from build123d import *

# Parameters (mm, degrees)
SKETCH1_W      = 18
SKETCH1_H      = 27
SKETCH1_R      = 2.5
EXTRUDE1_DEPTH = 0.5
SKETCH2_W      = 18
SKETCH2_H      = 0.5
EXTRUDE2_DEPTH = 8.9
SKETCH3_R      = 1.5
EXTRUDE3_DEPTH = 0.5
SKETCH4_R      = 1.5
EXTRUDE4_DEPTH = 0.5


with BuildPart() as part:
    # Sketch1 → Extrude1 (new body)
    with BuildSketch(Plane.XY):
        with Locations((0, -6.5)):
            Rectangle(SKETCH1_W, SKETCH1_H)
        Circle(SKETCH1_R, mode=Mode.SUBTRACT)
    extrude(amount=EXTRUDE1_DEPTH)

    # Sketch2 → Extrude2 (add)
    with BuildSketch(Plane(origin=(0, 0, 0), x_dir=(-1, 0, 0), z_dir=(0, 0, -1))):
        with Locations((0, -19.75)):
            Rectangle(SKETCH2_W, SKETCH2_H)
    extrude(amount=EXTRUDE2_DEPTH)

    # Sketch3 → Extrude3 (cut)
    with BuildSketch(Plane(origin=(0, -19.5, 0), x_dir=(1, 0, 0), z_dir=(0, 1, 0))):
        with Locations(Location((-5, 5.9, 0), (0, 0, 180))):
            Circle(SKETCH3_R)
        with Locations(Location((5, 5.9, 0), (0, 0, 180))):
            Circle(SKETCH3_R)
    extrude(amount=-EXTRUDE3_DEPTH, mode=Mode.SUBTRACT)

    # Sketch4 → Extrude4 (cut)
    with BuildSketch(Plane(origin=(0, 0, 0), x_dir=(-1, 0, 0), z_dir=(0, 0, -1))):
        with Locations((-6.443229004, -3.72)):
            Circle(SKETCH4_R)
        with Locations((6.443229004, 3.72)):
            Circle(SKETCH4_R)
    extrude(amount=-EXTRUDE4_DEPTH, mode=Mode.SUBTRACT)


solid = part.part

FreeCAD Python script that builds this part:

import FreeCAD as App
import Part
import Sketcher
Q = App.Units.Quantity


def add_polygon(sketch, points):
    """Adds a closed chain of lines whose ends are joined by coincident constraints."""
    first, n = sketch.GeometryCount, len(points)
    for a, b in zip(points, points[1:] + points[:1]):
        sketch.addGeometry(Part.LineSegment(App.Vector(*a, 0), App.Vector(*b, 0)), False)
    for i in range(n):
        sketch.addConstraint(Sketcher.Constraint("Coincident", first + i, 2, first + (i + 1) % n, 1))

doc = App.newDocument("Part")
body = doc.addObject("PartDesign::Body", "Body")

# Sketch on XY plane
sketch1 = doc.addObject("Sketcher::SketchObject", "Sketch")
body.addObject(sketch1)
sketch1.AttachmentSupport = (doc.XY_Plane, [""])
sketch1.MapMode = "FlatFace"
add_polygon(sketch1, [(-9, 7), (-9, -20), (9, -20), (9, 7)])  # lines 0-3
sketch1.addGeometry(Part.Circle(App.Vector(0, 0, 0), App.Vector(0, 0, 1), 2.5), False)  # 4
sketch1.addConstraint(Sketcher.Constraint("Vertical", 0))
sketch1.addConstraint(Sketcher.Constraint("Horizontal", 1))
sketch1.addConstraint(Sketcher.Constraint("Vertical", 2))
sketch1.addConstraint(Sketcher.Constraint("Horizontal", 3))
sketch1.addConstraint(Sketcher.Constraint("Coincident", 4, 3, -1, 1))
sketch1.addConstraint(Sketcher.Constraint("Diameter", 4, Q("5 mm")))
sketch1.addConstraint(Sketcher.Constraint("DistanceX", 1, 1, 1, 2, Q("18 mm")))
sketch1.addConstraint(Sketcher.Constraint("DistanceY", 0, 2, 0, 1, Q("27 mm")))
sketch1.addConstraint(Sketcher.Constraint("DistanceX", 0, 2, -1, 1, Q("9 mm")))
sketch1.addConstraint(Sketcher.Constraint("DistanceY", 0, 2, -1, 1, Q("20 mm")))
pad1 = doc.addObject("PartDesign::Pad", "Pad")
body.addObject(pad1)
pad1.Profile = sketch1
pad1.Length = 0.5

# Sketch on XY plane
sketch2 = doc.addObject("Sketcher::SketchObject", "Sketch001")
body.addObject(sketch2)
sketch2.AttachmentSupport = (doc.XY_Plane, [""])
sketch2.MapMode = "FlatFace"
add_polygon(sketch2, [(9, -19.5), (9, -20), (-9, -20), (-9, -19.5)])  # lines 0-3
sketch2.addConstraint(Sketcher.Constraint("Vertical", 0))
sketch2.addConstraint(Sketcher.Constraint("Horizontal", 1))
sketch2.addConstraint(Sketcher.Constraint("Vertical", 2))
sketch2.addConstraint(Sketcher.Constraint("Horizontal", 3))
sketch2.addConstraint(Sketcher.Constraint("DistanceX", 1, 2, 1, 1, Q("18 mm")))
sketch2.addConstraint(Sketcher.Constraint("DistanceY", 0, 2, 0, 1, Q("0.5 mm")))
sketch2.addConstraint(Sketcher.Constraint("DistanceX", -1, 1, 0, 2, Q("9 mm")))
sketch2.addConstraint(Sketcher.Constraint("DistanceY", 0, 2, -1, 1, Q("20 mm")))
pad2 = doc.addObject("PartDesign::Pad", "Pad001")
body.addObject(pad2)
pad2.Profile = sketch2
pad2.Length = 8.9
pad2.Reversed = True

# Sketch on XZ plane
sketch3 = doc.addObject("Sketcher::SketchObject", "Sketch002")
body.addObject(sketch3)
sketch3.AttachmentSupport = (doc.XZ_Plane, [""])
sketch3.MapMode = "FlatFace"
sketch3.AttachmentOffset = App.Placement(App.Vector(0, 0, 19.5), App.Rotation())
sketch3.addGeometry(Part.Circle(App.Vector(-5, -5.9, 0), App.Vector(0, 0, 1), 1.5), False)
sketch3.addGeometry(Part.Circle(App.Vector(5, -5.9, 0), App.Vector(0, 0, 1), 1.5), False)
sketch3.addConstraint(Sketcher.Constraint("Equal", 0, 1))
sketch3.addConstraint(Sketcher.Constraint("Symmetric", 0, 3, 1, 3, -2))
sketch3.addConstraint(Sketcher.Constraint("Diameter", 0, Q("3 mm")))
sketch3.addConstraint(Sketcher.Constraint("DistanceX", 0, 3, -1, 1, Q("5 mm")))
sketch3.addConstraint(Sketcher.Constraint("DistanceY", 0, 3, -1, 1, Q("5.9 mm")))
pocket1 = doc.addObject("PartDesign::Pocket", "Pocket")
body.addObject(pocket1)
pocket1.Profile = sketch3
pocket1.Length = 0.5
pocket1.Reversed = True

# Sketch on XY plane
sketch4 = doc.addObject("Sketcher::SketchObject", "Sketch003")
body.addObject(sketch4)
sketch4.AttachmentSupport = (doc.XY_Plane, [""])
sketch4.MapMode = "FlatFace"
sketch4.addGeometry(Part.Circle(App.Vector(6.4, -3.7, 0), App.Vector(0, 0, 1), 1.5), False)
sketch4.addGeometry(Part.Circle(App.Vector(-6.4, 3.7, 0), App.Vector(0, 0, 1), 1.5), False)
sketch4.addConstraint(Sketcher.Constraint("Equal", 0, 1))
sketch4.addConstraint(Sketcher.Constraint("Symmetric", 0, 3, 1, 3, -1, 1))
sketch4.addConstraint(Sketcher.Constraint("Diameter", 0, Q("3 mm")))
sketch4.addConstraint(Sketcher.Constraint("DistanceY", 0, 3, -1, 1, Q("3.72 mm")))
sketch4.addConstraint(Sketcher.Constraint("DistanceX", -1, 1, 0, 3, Q("6.443229 mm")))
pocket2 = doc.addObject("PartDesign::Pocket", "Pocket001")
body.addObject(pocket2)
pocket2.Profile = sketch4
pocket2.Length = 0.5
pocket2.Reversed = True

doc.recompute()
